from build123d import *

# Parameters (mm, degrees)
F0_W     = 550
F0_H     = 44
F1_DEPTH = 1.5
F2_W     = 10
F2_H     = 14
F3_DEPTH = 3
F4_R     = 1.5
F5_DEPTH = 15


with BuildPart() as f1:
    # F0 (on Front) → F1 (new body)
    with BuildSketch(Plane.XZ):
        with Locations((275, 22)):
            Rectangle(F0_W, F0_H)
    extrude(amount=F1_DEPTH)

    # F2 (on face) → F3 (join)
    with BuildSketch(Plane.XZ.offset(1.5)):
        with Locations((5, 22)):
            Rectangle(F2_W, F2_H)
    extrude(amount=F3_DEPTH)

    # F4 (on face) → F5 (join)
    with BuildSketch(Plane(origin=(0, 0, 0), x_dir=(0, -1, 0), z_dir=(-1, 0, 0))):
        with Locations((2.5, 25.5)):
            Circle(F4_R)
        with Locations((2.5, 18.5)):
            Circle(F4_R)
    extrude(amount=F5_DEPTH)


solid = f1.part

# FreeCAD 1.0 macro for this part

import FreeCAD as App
import Part
import Sketcher

V = App.Vector

doc = App.newDocument("Part")
body = doc.addObject("PartDesign::Body", "Body")

# Sketch on XZ plane
sketch1 = body.newObject("Sketcher::SketchObject", "Sketch")
sketch1.AttachmentSupport = (doc.getObject("XZ_Plane"), [""])
sketch1.MapMode = "FlatFace"
sketch1.addGeometry([
    Part.LineSegment(V(0, 44, 0), V(0, 0, 0)),
    Part.LineSegment(V(0, 0, 0), V(550, 0, 0)),
    Part.LineSegment(V(550, 0, 0), V(550, 44, 0)),
    Part.LineSegment(V(550, 44, 0), V(0, 44, 0)),
], False)
sketch1.addConstraint([
    Sketcher.Constraint("Coincident", 0, 2, 1, 1),
    Sketcher.Constraint("Coincident", 1, 2, 2, 1),
    Sketcher.Constraint("Coincident", 2, 2, 3, 1),
    Sketcher.Constraint("Coincident", 3, 2, 0, 1),
    Sketcher.Constraint("Vertical", 0),
    Sketcher.Constraint("Horizontal", 1),
    Sketcher.Constraint("Vertical", 2),
    Sketcher.Constraint("Horizontal", 3),
    Sketcher.Constraint("Coincident", 0, 2, -1, 1),
    Sketcher.Constraint("DistanceX", 1, 1, 1, 2, 550.0),
    Sketcher.Constraint("DistanceY", 0, 2, 0, 1, 44.0),
])
pad1 = body.newObject("PartDesign::Pad", "Pad")
pad1.Profile = sketch1
pad1.Length = 1.5

# Sketch on XZ plane
sketch2 = body.newObject("Sketcher::SketchObject", "Sketch001")
sketch2.AttachmentSupport = (doc.getObject("XZ_Plane"), [""])
sketch2.MapMode = "FlatFace"
sketch2.AttachmentOffset = App.Placement(V(0, 0, 1.5), App.Rotation())
sketch2.addGeometry([
    Part.LineSegment(V(0, 29, 0), V(0, 15, 0)),
    Part.LineSegment(V(0, 15, 0), V(10, 15, 0)),
    Part.LineSegment(V(10, 15, 0), V(10, 29, 0)),
    Part.LineSegment(V(10, 29, 0), V(0, 29, 0)),
], False)
sketch2.addConstraint([
    Sketcher.Constraint("Coincident", 0, 2, 1, 1),
    Sketcher.Constraint("Coincident", 1, 2, 2, 1),
    Sketcher.Constraint("Coincident", 2, 2, 3, 1),
    Sketcher.Constraint("Coincident", 3, 2, 0, 1),
    Sketcher.Constraint("Vertical", 0),
    Sketcher.Constraint("Horizontal", 1),
    Sketcher.Constraint("Vertical", 2),
    Sketcher.Constraint("Horizontal", 3),
    Sketcher.Constraint("PointOnObject", 0, 2, -2),
    Sketcher.Constraint("DistanceX", 1, 1, 1, 2, 10.0),
    Sketcher.Constraint("DistanceY", 0, 2, 0, 1, 14.0),
    Sketcher.Constraint("DistanceY", -1, 1, 0, 2, 15.0),
])
pad2 = body.newObject("PartDesign::Pad", "Pad001")
pad2.Profile = sketch2
pad2.Length = 3

# Sketch on YZ plane
sketch3 = body.newObject("Sketcher::SketchObject", "Sketch002")
sketch3.AttachmentSupport = (doc.getObject("YZ_Plane"), [""])
sketch3.MapMode = "FlatFace"
sketch3.addGeometry([
    Part.Circle(V(-2.5, 25.5, 0), V(0, 0, 1), 1.5),
    Part.Circle(V(-2.5, 18.5, 0), V(0, 0, 1), 1.5),
], False)
sketch3.addConstraint([
    Sketcher.Constraint("Equal", 0, 1),
    Sketcher.Constraint("Vertical", 0, 3, 1, 3),
    Sketcher.Constraint("Diameter", 0, 3.0),
    Sketcher.Constraint("DistanceY", 1, 3, 0, 3, 7.0),
    Sketcher.Constraint("DistanceX", 0, 3, -1, 1, 2.5),
    Sketcher.Constraint("DistanceY", -1, 1, 0, 3, 25.5),
])
pad3 = body.newObject("PartDesign::Pad", "Pad002")
pad3.Profile = sketch3
pad3.Length = 15
pad3.Reversed = True

doc.recompute()
